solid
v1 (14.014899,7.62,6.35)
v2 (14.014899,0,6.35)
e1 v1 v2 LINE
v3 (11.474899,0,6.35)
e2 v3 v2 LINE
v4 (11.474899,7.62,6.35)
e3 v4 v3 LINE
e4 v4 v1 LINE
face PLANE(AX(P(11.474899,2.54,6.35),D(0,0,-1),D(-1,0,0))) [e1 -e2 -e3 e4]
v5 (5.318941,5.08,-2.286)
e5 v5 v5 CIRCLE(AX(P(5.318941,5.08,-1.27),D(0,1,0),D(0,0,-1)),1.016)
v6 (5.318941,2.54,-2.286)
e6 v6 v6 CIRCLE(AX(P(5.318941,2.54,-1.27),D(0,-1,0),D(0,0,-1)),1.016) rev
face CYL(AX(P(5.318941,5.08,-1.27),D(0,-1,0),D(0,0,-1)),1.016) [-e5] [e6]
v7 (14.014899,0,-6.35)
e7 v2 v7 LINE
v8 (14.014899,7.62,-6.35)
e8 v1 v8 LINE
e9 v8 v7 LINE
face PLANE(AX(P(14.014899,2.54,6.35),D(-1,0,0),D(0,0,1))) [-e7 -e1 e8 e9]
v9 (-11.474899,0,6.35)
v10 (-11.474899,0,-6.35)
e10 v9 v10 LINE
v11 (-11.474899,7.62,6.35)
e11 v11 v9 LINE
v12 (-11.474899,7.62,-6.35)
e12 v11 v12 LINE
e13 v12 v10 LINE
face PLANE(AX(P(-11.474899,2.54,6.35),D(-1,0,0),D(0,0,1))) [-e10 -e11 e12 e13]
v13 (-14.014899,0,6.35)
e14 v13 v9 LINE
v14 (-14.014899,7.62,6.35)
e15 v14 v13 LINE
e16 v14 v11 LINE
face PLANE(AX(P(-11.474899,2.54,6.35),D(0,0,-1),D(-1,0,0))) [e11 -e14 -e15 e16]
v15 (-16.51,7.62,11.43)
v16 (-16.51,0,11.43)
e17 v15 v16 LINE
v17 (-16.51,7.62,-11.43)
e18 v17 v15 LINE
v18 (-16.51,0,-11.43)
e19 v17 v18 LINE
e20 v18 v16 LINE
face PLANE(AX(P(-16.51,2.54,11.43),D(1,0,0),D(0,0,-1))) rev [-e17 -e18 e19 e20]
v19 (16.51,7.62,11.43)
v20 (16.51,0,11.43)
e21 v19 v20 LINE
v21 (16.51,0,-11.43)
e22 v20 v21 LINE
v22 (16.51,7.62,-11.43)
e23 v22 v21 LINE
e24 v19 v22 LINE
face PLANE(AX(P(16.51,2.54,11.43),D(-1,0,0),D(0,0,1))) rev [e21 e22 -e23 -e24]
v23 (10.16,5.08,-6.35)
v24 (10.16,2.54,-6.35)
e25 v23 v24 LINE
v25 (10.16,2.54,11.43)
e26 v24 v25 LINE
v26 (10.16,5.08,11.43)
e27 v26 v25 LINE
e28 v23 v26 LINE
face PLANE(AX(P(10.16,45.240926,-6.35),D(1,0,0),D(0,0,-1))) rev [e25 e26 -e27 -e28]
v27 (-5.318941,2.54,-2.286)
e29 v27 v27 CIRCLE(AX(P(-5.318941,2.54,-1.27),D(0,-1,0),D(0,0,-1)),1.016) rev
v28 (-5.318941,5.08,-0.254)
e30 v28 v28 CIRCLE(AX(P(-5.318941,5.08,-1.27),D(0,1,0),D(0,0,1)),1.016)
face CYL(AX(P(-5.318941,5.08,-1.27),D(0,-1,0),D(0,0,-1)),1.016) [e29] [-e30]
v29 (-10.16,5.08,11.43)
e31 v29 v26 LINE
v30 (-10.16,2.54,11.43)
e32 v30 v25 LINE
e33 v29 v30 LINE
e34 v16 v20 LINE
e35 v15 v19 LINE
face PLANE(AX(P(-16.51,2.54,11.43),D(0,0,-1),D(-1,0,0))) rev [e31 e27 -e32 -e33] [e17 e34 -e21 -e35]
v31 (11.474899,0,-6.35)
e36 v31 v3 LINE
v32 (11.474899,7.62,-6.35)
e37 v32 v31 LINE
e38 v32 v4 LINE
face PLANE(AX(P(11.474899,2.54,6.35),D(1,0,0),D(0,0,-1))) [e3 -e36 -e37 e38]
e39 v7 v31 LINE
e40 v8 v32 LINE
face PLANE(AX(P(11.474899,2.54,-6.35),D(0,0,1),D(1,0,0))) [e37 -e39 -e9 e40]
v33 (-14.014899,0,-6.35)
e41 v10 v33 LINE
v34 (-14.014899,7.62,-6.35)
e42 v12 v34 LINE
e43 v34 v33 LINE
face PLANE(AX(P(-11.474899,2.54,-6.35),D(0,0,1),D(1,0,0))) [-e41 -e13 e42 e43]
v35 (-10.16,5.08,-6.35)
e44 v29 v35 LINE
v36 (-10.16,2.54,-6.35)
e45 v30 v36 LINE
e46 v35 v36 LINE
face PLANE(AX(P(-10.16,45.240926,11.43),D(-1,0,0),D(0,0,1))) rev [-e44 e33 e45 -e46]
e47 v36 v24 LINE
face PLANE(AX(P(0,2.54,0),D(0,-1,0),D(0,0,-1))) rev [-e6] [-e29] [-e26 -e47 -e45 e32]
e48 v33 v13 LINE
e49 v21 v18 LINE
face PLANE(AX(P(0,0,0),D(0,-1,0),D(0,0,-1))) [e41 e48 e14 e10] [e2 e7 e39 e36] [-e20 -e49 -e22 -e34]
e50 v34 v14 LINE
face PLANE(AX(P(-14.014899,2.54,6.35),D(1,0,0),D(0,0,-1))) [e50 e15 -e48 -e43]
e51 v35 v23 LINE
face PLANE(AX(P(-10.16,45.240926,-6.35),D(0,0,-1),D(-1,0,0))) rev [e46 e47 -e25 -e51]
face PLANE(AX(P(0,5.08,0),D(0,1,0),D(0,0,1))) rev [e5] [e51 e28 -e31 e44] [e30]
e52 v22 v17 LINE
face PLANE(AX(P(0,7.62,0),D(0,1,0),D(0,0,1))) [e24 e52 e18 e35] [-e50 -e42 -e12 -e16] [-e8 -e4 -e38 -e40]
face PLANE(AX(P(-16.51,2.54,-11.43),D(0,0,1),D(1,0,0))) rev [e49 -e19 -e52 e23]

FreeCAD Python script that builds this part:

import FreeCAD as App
import Part
import Sketcher

V = App.Vector
Q = App.Units.Quantity


def add_polygon(sketch, points):
    """Adds a closed chain of lines whose ends are joined by coincident constraints."""
    first, n = sketch.GeometryCount, len(points)
    for a, b in zip(points, points[1:] + points[:1]):
        sketch.addGeometry(Part.LineSegment(App.Vector(*a, 0), App.Vector(*b, 0)), False)
    for i in range(n):
        sketch.addConstraint(Sketcher.Constraint("Coincident", first + i, 2, first + (i + 1) % n, 1))

doc = App.newDocument("Part")
body = doc.addObject("PartDesign::Body", "Body")

# Sketch on XZ plane
sketch1 = body.newObject("Sketcher::SketchObject", "Sketch")
sketch1.AttachmentSupport = (doc.getObject("XZ_Plane"), [""])
sketch1.MapMode = "FlatFace"
add_polygon(sketch1, [(-16.5, -11.4), (-16.5, 11.4), (16.5, 11.4), (16.5, -11.4)])  # lines 0-3
add_polygon(sketch1, [(-11.5, 6.3), (-14, 6.3), (-14, -6.3), (-11.5, -6.3)])  # lines 4-7
add_polygon(sketch1, [(14, 6.3), (11.5, 6.3), (11.5, -6.3), (14, -6.3)])  # lines 8-11
sketch1.addConstraint([
    Sketcher.Constraint("Vertical", 0),
    Sketcher.Constraint("Horizontal", 1),
    Sketcher.Constraint("Vertical", 2),
    Sketcher.Constraint("Horizontal", 3),
    Sketcher.Constraint("Horizontal", 4),
    Sketcher.Constraint("Vertical", 5),
    Sketcher.Constraint("Horizontal", 6),
    Sketcher.Constraint("Vertical", 7),
    Sketcher.Constraint("Horizontal", 8),
    Sketcher.Constraint("Vertical", 9),
    Sketcher.Constraint("Horizontal", 10),
    Sketcher.Constraint("Vertical", 11),
    Sketcher.Constraint("Symmetric", 0, 2, 2, 2, -1, 1),
    Sketcher.Constraint("Symmetric", 6, 2, 8, 2, -1, 1),
    Sketcher.Constraint("Symmetric", 4, 2, 10, 2, -1, 1),
    Sketcher.Constraint("Horizontal", 7, 2, 8, 2),
    Sketcher.Constraint("DistanceX", 1, 1, 1, 2, Q("1.3 in")),
    Sketcher.Constraint("DistanceX", 4, 2, 4, 1, Q("0.1 in")),
    Sketcher.Constraint("DistanceY", 0, 1, 0, 2, Q("0.9 in")),
    Sketcher.Constraint("DistanceY", 5, 2, 5, 1, Q("0.5 in")),
    Sketcher.Constraint("DistanceX", 4, 2, -1, 1, Q("14.014899 mm")),
])
pad1 = body.newObject("PartDesign::Pad", "Pad")
pad1.Profile = sketch1
pad1.Length = Q("0.1 in")
pad1.Reversed = True

# Sketch on XZ plane
sketch2 = body.newObject("Sketcher::SketchObject", "Sketch001")
sketch2.AttachmentSupport = (doc.getObject("XZ_Plane"), [""])
sketch2.MapMode = "FlatFace"
sketch2.AttachmentOffset = App.Placement(V(0, 0, -0.1 * 25.4), App.Rotation())
sketch2.addGeometry([
    Part.Circle(V(-5.3, -1.3, 0), V(0, 0, 1), 1),
    Part.Circle(V(5.3, -1.3, 0), V(0, 0, 1), 1),
], False)
sketch2.addConstraint([
    Sketcher.Constraint("Equal", 0, 1),
    Sketcher.Constraint("Symmetric", 0, 3, 1, 3, -2),
    Sketcher.Constraint("Diameter", 0, Q("0.08 in")),
    Sketcher.Constraint("DistanceY", 0, 3, -1, 1, Q("0.05 in")),
    Sketcher.Constraint("DistanceX", 0, 3, -1, 1, Q("5.318941 mm")),
])
pad2 = body.newObject("PartDesign::Pad", "Pad001")
pad2.Profile = sketch2
pad2.Length = Q("0.1 in")
pad2.Reversed = True

# Sketch on XZ plane
sketch3 = body.newObject("Sketcher::SketchObject", "Sketch002")
sketch3.AttachmentSupport = (doc.getObject("XZ_Plane"), [""])
sketch3.MapMode = "FlatFace"
sketch3.AttachmentOffset = App.Placement(V(0, 0, -0.2 * 25.4), App.Rotation())
add_polygon(sketch3, [(-16.5, -11.4), (-16.5, 11.4), (16.5, 11.4), (16.5, -11.4)])  # lines 0-3
add_polygon(sketch3, [(-11.5, 6.3), (-14, 6.3), (-14, -6.3), (-11.5, -6.3)])  # lines 4-7
add_polygon(sketch3, [(14, 6.3), (11.5, 6.3), (11.5, -6.3), (14, -6.3)])  # lines 8-11
sketch3.addConstraint([
    Sketcher.Constraint("Vertical", 0),
    Sketcher.Constraint("Horizontal", 1),
    Sketcher.Constraint("Vertical", 2),
    Sketcher.Constraint("Horizontal", 3),
    Sketcher.Constraint("Horizontal", 4),
    Sketcher.Constraint("Vertical", 5),
    Sketcher.Constraint("Horizontal", 6),
    Sketcher.Constraint("Vertical", 7),
    Sketcher.Constraint("Horizontal", 8),
    Sketcher.Constraint("Vertical", 9),
    Sketcher.Constraint("Horizontal", 10),
    Sketcher.Constraint("Vertical", 11),
    Sketcher.Constraint("Symmetric", 0, 2, 2, 2, -1, 1),
    Sketcher.Constraint("Symmetric", 6, 2, 8, 2, -1, 1),
    Sketcher.Constraint("Symmetric", 4, 2, 10, 2, -1, 1),
    Sketcher.Constraint("Horizontal", 7, 2, 8, 2),
    Sketcher.Constraint("DistanceX", 1, 1, 1, 2, Q("1.3 in")),
    Sketcher.Constraint("DistanceX", 4, 2, 4, 1, Q("0.1 in")),
    Sketcher.Constraint("DistanceY", 0, 1, 0, 2, Q("0.9 in")),
    Sketcher.Constraint("DistanceY", 5, 2, 5, 1, Q("0.5 in")),
    Sketcher.Constraint("DistanceX", 4, 2, -1, 1, Q("14.014899 mm")),
])
pad3 = body.newObject("PartDesign::Pad", "Pad002")
pad3.Profile = sketch3
pad3.Length = Q("0.1 in")
pad3.Reversed = True

# Sketch on XZ plane
sketch4 = body.newObject("Sketcher::SketchObject", "Sketch003")
sketch4.AttachmentSupport = (doc.getObject("XZ_Plane"), [""])
sketch4.MapMode = "FlatFace"
sketch4.AttachmentOffset = App.Placement(V(0, 0, -0.1 * 25.4), App.Rotation())
add_polygon(sketch4, [(-16.5, -11.4), (-16.5, 11.4), (-10.2, 11.4), (-10.2, -6.3), (10.2, -6.3), (10.2, 11.4), (16.5, 11.4), (16.5, -11.4)])  # lines 0-7
add_polygon(sketch4, [(11.5, 6.3), (11.5, -6.3), (14, -6.3), (14, 6.3)])  # lines 8-11
add_polygon(sketch4, [(-14, 6.3), (-14, -6.3), (-11.5, -6.3), (-11.5, 6.3)])  # lines 12-15
sketch4.addConstraint([
    Sketcher.Constraint("Vertical", 0),
    Sketcher.Constraint("Horizontal", 1),
    Sketcher.Constraint("Vertical", 2),
    Sketcher.Constraint("Horizontal", 3),
    Sketcher.Constraint("Vertical", 4),
    Sketcher.Constraint("Horizontal", 5),
    Sketcher.Constraint("Vertical", 6),
    Sketcher.Constraint("Horizontal", 7),
    Sketcher.Constraint("Vertical", 8),
    Sketcher.Constraint("Horizontal", 9),
    Sketcher.Constraint("Vertical", 10),
    Sketcher.Constraint("Horizontal", 11),
    Sketcher.Constraint("Vertical", 12),
    Sketcher.Constraint("Horizontal", 13),
    Sketcher.Constraint("Vertical", 14),
    Sketcher.Constraint("Horizontal", 15),
    Sketcher.Constraint("Symmetric", 0, 2, 6, 2, -1, 1),
    Sketcher.Constraint("Symmetric", 10, 2, 12, 2, -1, 1),
    Sketcher.Constraint("Symmetric", 8, 2, 14, 2, -1, 1),
    Sketcher.Constraint("Symmetric", 1, 2, 4, 2, -2),
    Sketcher.Constraint("Horizontal", 3, 2, 8, 2),
    Sketcher.Constraint("Horizontal", 9, 2, 12, 2),
    Sketcher.Constraint("DistanceX", 3, 1, 3, 2, Q("0.8 in")),
    Sketcher.Constraint("DistanceX", 7, 2, 7, 1, Q("1.3 in")),
    Sketcher.Constraint("DistanceX", 9, 1, 9, 2, Q("0.1 in")),
    Sketcher.Constraint("DistanceY", 0, 1, 0, 2, Q("0.9 in")),
    Sketcher.Constraint("DistanceY", 2, 2, 2, 1, Q("0.7 in")),
    Sketcher.Constraint("DistanceX", -1, 1, 8, 2, Q("11.474899 mm")),
])
pad4 = body.newObject("PartDesign::Pad", "Pad003")
pad4.Profile = sketch4
pad4.Length = Q("0.1 in")
pad4.Reversed = True

doc.recompute()
